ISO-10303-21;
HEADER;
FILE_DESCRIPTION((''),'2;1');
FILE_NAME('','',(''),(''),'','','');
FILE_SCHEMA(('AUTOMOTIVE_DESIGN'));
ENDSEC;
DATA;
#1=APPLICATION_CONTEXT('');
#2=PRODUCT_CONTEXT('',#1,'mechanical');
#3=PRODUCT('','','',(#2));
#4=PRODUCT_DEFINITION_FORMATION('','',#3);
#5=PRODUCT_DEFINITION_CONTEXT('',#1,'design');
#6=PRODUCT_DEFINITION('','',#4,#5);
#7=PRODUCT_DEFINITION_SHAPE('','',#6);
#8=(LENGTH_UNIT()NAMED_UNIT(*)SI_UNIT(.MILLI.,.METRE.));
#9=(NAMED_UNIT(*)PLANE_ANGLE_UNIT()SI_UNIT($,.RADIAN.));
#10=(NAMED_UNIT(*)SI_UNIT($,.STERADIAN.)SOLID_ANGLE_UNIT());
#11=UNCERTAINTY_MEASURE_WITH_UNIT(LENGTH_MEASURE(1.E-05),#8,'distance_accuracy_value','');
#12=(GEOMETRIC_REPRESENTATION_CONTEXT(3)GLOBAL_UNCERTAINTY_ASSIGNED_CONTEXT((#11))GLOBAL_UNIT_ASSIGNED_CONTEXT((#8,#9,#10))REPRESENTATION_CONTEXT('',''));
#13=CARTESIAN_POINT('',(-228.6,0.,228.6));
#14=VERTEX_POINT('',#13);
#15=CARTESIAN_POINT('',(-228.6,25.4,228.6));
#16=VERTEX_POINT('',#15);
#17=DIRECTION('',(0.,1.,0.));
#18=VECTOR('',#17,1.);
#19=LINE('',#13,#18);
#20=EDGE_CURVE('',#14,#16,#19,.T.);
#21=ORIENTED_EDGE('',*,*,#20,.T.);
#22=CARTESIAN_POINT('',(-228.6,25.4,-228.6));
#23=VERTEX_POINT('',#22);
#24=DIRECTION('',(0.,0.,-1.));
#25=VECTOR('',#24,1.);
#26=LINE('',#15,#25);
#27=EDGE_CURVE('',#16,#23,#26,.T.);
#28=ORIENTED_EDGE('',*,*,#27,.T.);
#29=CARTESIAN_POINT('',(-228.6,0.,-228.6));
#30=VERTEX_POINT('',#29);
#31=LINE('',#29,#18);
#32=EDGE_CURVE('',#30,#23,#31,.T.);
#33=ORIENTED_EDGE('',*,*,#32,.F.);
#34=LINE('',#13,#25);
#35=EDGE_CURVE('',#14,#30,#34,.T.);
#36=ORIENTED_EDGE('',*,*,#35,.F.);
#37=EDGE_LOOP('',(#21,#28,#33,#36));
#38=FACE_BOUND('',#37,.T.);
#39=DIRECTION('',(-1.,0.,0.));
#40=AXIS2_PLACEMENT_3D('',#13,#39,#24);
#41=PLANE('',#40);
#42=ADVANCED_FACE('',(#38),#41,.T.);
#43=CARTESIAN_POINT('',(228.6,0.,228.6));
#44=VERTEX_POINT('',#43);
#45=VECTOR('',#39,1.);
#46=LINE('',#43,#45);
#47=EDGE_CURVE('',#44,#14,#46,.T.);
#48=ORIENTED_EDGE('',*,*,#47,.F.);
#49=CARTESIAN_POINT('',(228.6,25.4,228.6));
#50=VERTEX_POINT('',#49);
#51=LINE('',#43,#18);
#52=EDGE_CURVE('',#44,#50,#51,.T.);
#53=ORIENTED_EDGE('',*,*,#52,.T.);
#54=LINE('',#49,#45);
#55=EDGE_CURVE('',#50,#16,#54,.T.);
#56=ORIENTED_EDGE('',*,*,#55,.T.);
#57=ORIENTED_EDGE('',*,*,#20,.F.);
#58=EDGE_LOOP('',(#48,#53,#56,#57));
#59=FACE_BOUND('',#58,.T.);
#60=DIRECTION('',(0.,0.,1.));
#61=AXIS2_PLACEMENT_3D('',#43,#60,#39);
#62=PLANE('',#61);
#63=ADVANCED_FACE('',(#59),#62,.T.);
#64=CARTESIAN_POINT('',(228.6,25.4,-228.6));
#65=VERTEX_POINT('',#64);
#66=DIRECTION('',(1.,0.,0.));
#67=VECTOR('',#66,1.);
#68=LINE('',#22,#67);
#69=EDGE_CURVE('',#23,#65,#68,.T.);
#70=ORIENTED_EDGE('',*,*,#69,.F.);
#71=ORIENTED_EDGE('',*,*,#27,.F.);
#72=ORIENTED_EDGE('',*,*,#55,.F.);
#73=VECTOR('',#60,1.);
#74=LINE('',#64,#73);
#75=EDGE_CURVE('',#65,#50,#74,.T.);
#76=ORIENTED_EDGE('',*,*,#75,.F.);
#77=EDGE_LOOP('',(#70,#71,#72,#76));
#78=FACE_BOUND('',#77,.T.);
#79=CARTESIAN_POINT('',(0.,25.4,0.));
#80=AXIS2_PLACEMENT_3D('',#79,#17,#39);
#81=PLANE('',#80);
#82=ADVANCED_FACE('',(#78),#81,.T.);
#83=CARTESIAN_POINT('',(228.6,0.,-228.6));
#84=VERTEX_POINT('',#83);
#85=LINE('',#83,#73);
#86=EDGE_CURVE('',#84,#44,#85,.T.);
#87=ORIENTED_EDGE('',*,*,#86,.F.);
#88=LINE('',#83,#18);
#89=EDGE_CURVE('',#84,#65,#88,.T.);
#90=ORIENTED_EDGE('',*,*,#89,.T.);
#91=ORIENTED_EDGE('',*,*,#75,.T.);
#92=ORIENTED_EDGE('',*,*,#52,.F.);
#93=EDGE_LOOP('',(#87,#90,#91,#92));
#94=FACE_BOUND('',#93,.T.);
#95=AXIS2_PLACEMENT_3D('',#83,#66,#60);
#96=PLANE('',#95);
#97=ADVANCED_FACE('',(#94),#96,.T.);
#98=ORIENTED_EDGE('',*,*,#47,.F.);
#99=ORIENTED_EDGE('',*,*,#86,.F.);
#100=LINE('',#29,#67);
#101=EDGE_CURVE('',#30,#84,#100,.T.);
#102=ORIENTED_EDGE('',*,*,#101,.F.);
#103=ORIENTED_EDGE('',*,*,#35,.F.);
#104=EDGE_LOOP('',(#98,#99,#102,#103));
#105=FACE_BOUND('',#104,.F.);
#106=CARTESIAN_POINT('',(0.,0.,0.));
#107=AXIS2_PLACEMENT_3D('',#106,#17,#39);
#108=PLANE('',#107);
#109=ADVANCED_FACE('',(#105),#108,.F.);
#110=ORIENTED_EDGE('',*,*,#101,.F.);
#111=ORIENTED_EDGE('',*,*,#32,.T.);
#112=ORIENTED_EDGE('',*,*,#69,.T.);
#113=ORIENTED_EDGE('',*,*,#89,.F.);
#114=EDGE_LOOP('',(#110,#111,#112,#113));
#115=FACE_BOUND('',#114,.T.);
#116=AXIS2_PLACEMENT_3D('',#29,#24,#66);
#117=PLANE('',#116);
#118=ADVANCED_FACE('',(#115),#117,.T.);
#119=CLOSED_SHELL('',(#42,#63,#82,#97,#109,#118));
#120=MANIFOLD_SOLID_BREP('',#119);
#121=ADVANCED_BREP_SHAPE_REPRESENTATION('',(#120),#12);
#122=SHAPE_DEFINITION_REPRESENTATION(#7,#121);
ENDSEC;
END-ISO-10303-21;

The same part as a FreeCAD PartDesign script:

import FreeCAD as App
import Part
import Sketcher
from FreeCAD import Vector
Q = App.Units.Quantity

doc = App.newDocument("Part")
body = doc.addObject("PartDesign::Body", "Body")

# Sketch on XZ plane
sketch1 = doc.addObject("Sketcher::SketchObject", "Sketch")
body.addObject(sketch1)
sketch1.AttachmentSupport = (doc.XZ_Plane, [""])
sketch1.MapMode = "FlatFace"
sketch1.addGeometry(Part.LineSegment(Vector(229, -229, 0), Vector(-229, -229, 0)), False)
sketch1.addGeometry(Part.LineSegment(Vector(-229, -229, 0), Vector(-229, 229, 0)), False)
sketch1.addGeometry(Part.LineSegment(Vector(-229, 229, 0), Vector(229, 229, 0)), False)
sketch1.addGeometry(Part.LineSegment(Vector(229, 229, 0), Vector(229, -229, 0)), False)
sketch1.addConstraint(Sketcher.Constraint("Coincident", 0, 2, 1, 1))
sketch1.addConstraint(Sketcher.Constraint("Coincident", 1, 2, 2, 1))
sketch1.addConstraint(Sketcher.Constraint("Coincident", 2, 2, 3, 1))
sketch1.addConstraint(Sketcher.Constraint("Coincident", 3, 2, 0, 1))
sketch1.addConstraint(Sketcher.Constraint("Horizontal", 0))
sketch1.addConstraint(Sketcher.Constraint("Vertical", 1))
sketch1.addConstraint(Sketcher.Constraint("Horizontal", 2))
sketch1.addConstraint(Sketcher.Constraint("Vertical", 3))
sketch1.addConstraint(Sketcher.Constraint("Symmetric", 0, 2, 2, 2, -1, 1))
sketch1.addConstraint(Sketcher.Constraint("Equal", 2, 1))
sketch1.addConstraint(Sketcher.Constraint("DistanceX", 0, 2, 0, 1, Q("18 in")))
pad1 = doc.addObject("PartDesign::Pad", "Pad")
body.addObject(pad1)
pad1.Profile = sketch1
pad1.Length = Q("1 in")
pad1.Reversed = True

doc.recompute()
